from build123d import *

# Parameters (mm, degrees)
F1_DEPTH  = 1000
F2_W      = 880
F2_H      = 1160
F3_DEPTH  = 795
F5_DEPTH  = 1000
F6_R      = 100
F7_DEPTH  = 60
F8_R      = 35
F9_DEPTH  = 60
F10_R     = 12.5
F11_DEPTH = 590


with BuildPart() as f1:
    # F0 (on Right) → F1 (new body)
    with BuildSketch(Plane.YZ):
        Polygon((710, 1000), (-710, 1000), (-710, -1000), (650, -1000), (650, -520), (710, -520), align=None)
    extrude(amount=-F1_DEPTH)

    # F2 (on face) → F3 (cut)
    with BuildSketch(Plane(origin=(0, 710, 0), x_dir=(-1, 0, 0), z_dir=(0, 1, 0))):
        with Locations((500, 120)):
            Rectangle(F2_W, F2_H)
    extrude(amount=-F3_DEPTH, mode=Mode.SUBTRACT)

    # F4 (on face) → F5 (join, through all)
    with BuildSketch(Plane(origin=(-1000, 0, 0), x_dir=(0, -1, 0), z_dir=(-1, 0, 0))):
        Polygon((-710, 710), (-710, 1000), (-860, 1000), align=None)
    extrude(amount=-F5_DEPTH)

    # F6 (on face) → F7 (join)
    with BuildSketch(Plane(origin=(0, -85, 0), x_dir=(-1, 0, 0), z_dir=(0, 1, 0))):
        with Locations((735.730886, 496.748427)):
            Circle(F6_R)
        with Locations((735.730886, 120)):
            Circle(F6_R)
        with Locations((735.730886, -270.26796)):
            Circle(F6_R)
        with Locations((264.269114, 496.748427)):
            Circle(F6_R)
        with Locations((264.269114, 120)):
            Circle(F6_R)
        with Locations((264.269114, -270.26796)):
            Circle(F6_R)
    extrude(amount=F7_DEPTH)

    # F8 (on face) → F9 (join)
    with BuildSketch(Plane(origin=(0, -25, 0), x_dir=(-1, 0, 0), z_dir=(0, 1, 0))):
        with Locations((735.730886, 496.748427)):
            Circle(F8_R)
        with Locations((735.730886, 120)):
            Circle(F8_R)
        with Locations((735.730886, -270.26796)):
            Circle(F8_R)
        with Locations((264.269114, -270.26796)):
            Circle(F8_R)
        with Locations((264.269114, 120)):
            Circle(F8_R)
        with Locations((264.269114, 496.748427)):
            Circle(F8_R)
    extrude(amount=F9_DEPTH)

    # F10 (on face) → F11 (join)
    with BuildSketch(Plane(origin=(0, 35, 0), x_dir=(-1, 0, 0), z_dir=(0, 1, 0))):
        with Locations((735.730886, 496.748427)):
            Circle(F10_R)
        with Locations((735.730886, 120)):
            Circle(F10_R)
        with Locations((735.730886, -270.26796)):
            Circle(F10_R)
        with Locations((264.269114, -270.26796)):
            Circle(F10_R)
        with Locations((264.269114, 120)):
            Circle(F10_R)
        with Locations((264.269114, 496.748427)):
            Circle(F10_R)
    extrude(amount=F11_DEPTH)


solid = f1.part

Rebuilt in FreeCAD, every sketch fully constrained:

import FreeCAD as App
import Part
import Sketcher

doc = App.newDocument("Part")
body = doc.addObject("PartDesign::Body", "Body")

sketch1 = doc.addObject("Sketcher::SketchObject", "Sketch")
body.addObject(sketch1)
sketch1.AttachmentSupport = (doc.YZ_Plane, [""])
sketch1.MapMode = "FlatFace"
sketch1.addGeometry(Part.LineSegment(App.Vector(710, 1000, 0), App.Vector(-710, 1000, 0)), False)
sketch1.addGeometry(Part.LineSegment(App.Vector(-710, 1000, 0), App.Vector(-710, -1000, 0)), False)
sketch1.addGeometry(Part.LineSegment(App.Vector(-710, -1000, 0), App.Vector(650, -1000, 0)), False)
sketch1.addGeometry(Part.LineSegment(App.Vector(650, -1000, 0), App.Vector(650, -520, 0)), False)
sketch1.addGeometry(Part.LineSegment(App.Vector(650, -520, 0), App.Vector(710, -520, 0)), False)
sketch1.addGeometry(Part.LineSegment(App.Vector(710, -520, 0), App.Vector(710, 1000, 0)), False)
sketch1.addConstraint(Sketcher.Constraint("Coincident", 0, 2, 1, 1))
sketch1.addConstraint(Sketcher.Constraint("Coincident", 1, 2, 2, 1))
sketch1.addConstraint(Sketcher.Constraint("Coincident", 2, 2, 3, 1))
sketch1.addConstraint(Sketcher.Constraint("Coincident", 3, 2, 4, 1))
sketch1.addConstraint(Sketcher.Constraint("Coincident", 4, 2, 5, 1))
sketch1.addConstraint(Sketcher.Constraint("Coincident", 5, 2, 0, 1))
sketch1.addConstraint(Sketcher.Constraint("Horizontal", 0))
sketch1.addConstraint(Sketcher.Constraint("Vertical", 1))
sketch1.addConstraint(Sketcher.Constraint("Horizontal", 2))
sketch1.addConstraint(Sketcher.Constraint("Vertical", 3))
sketch1.addConstraint(Sketcher.Constraint("Horizontal", 4))
sketch1.addConstraint(Sketcher.Constraint("Vertical", 5))
sketch1.addConstraint(Sketcher.Constraint("Symmetric", 1, 2, 5, 2, -1, 1))
sketch1.addConstraint(Sketcher.Constraint("DistanceX", 0, 2, 0, 1, 1420.0))
sketch1.addConstraint(Sketcher.Constraint("DistanceX", 2, 1, 2, 2, 1360.0))
sketch1.addConstraint(Sketcher.Constraint("DistanceY", 1, 2, 1, 1, 2000.0))
sketch1.addConstraint(Sketcher.Constraint("DistanceY", 3, 1, 3, 2, 480.0))
pad1 = doc.addObject("PartDesign::Pad", "Pad")
body.addObject(pad1)
pad1.Profile = sketch1
pad1.Length = 1000
pad1.Reversed = True

sketch2 = doc.addObject("Sketcher::SketchObject", "Sketch001")
body.addObject(sketch2)
sketch2.AttachmentSupport = (doc.XZ_Plane, [""])
sketch2.MapMode = "FlatFace"
sketch2.AttachmentOffset = App.Placement(App.Vector(0, 0, -710), App.Rotation())
sketch2.addGeometry(Part.LineSegment(App.Vector(-60, 700, 0), App.Vector(-60, -460, 0)), False)
sketch2.addGeometry(Part.LineSegment(App.Vector(-60, -460, 0), App.Vector(-940, -460, 0)), False)
sketch2.addGeometry(Part.LineSegment(App.Vector(-940, -460, 0), App.Vector(-940, 700, 0)), False)
sketch2.addGeometry(Part.LineSegment(App.Vector(-940, 700, 0), App.Vector(-60, 700, 0)), False)
sketch2.addConstraint(Sketcher.Constraint("Coincident", 0, 2, 1, 1))
sketch2.addConstraint(Sketcher.Constraint("Coincident", 1, 2, 2, 1))
sketch2.addConstraint(Sketcher.Constraint("Coincident", 2, 2, 3, 1))
sketch2.addConstraint(Sketcher.Constraint("Coincident", 3, 2, 0, 1))
sketch2.addConstraint(Sketcher.Constraint("Vertical", 0))
sketch2.addConstraint(Sketcher.Constraint("Horizontal", 1))
sketch2.addConstraint(Sketcher.Constraint("Vertical", 2))
sketch2.addConstraint(Sketcher.Constraint("Horizontal", 3))
sketch2.addConstraint(Sketcher.Constraint("DistanceX", 1, 2, 1, 1, 880.0))
sketch2.addConstraint(Sketcher.Constraint("DistanceY", 0, 2, 0, 1, 1160.0))
sketch2.addConstraint(Sketcher.Constraint("DistanceX", 0, 2, -1, 1, 60.0))
sketch2.addConstraint(Sketcher.Constraint("DistanceY", 0, 2, -1, 1, 460.0))
pocket1 = doc.addObject("PartDesign::Pocket", "Pocket")
body.addObject(pocket1)
pocket1.Profile = sketch2
pocket1.Length = 795
pocket1.Reversed = True

sketch3 = doc.addObject("Sketcher::SketchObject", "Sketch002")
body.addObject(sketch3)
sketch3.AttachmentSupport = (doc.YZ_Plane, [""])
sketch3.MapMode = "FlatFace"
sketch3.AttachmentOffset = App.Placement(App.Vector(0, 0, -1000), App.Rotation())
sketch3.addGeometry(Part.LineSegment(App.Vector(710, 710, 0), App.Vector(710, 1000, 0)), False)
sketch3.addGeometry(Part.LineSegment(App.Vector(710, 1000, 0), App.Vector(860, 1000, 0)), False)
sketch3.addGeometry(Part.LineSegment(App.Vector(860, 1000, 0), App.Vector(710, 710, 0)), False)
sketch3.addConstraint(Sketcher.Constraint("Coincident", 0, 2, 1, 1))
sketch3.addConstraint(Sketcher.Constraint("Coincident", 1, 2, 2, 1))
sketch3.addConstraint(Sketcher.Constraint("Coincident", 2, 2, 0, 1))
sketch3.addConstraint(Sketcher.Constraint("Vertical", 0))
sketch3.addConstraint(Sketcher.Constraint("Horizontal", 1))
sketch3.addConstraint(Sketcher.Constraint("DistanceX", 1, 1, 1, 2, 150.0))
sketch3.addConstraint(Sketcher.Constraint("DistanceY", 0, 1, 0, 2, 290.0))
sketch3.addConstraint(Sketcher.Constraint("DistanceX", -1, 1, 0, 2, 710.0))
sketch3.addConstraint(Sketcher.Constraint("DistanceY", -1, 1, 0, 2, 1000.0))
pad2 = doc.addObject("PartDesign::Pad", "Pad001")
body.addObject(pad2)
pad2.Profile = sketch3
pad2.Length = 1000

sketch4 = doc.addObject("Sketcher::SketchObject", "Sketch003")
body.addObject(sketch4)
sketch4.AttachmentSupport = (doc.XZ_Plane, [""])
sketch4.MapMode = "FlatFace"
sketch4.AttachmentOffset = App.Placement(App.Vector(0, 0, 85), App.Rotation())
sketch4.addGeometry(Part.Circle(App.Vector(-736, 497, 0), App.Vector(0, 0, 1), 100), False)
sketch4.addGeometry(Part.Circle(App.Vector(-736, 120, 0), App.Vector(0, 0, 1), 100), False)
sketch4.addGeometry(Part.Circle(App.Vector(-736, -270, 0), App.Vector(0, 0, 1), 100), False)
sketch4.addGeometry(Part.Circle(App.Vector(-264, 497, 0), App.Vector(0, 0, 1), 100), False)
sketch4.addGeometry(Part.Circle(App.Vector(-264, 120, 0), App.Vector(0, 0, 1), 100), False)
sketch4.addGeometry(Part.Circle(App.Vector(-264, -270, 0), App.Vector(0, 0, 1), 100), False)
sketch4.addConstraint(Sketcher.Constraint("Equal", 0, 1))
sketch4.addConstraint(Sketcher.Constraint("Equal", 1, 2))
sketch4.addConstraint(Sketcher.Constraint("Equal", 2, 3))
sketch4.addConstraint(Sketcher.Constraint("Equal", 3, 4))
sketch4.addConstraint(Sketcher.Constraint("Equal", 4, 5))
sketch4.addConstraint(Sketcher.Constraint("Horizontal", 0, 3, 3, 3))
sketch4.addConstraint(Sketcher.Constraint("Horizontal", 1, 3, 4, 3))
sketch4.addConstraint(Sketcher.Constraint("Horizontal", 2, 3, 5, 3))
sketch4.addConstraint(Sketcher.Constraint("Vertical", 0, 3, 1, 3))
sketch4.addConstraint(Sketcher.Constraint("Vertical", 1, 3, 2, 3))
sketch4.addConstraint(Sketcher.Constraint("Vertical", 3, 3, 4, 3))
sketch4.addConstraint(Sketcher.Constraint("Vertical", 4, 3, 5, 3))
sketch4.addConstraint(Sketcher.Constraint("Diameter", 0, 200.0))
sketch4.addConstraint(Sketcher.Constraint("DistanceY", -1, 1, 1, 3, 120.0))
sketch4.addConstraint(Sketcher.Constraint("DistanceY", 2, 3, -1, 1, 270.26796))
sketch4.addConstraint(Sketcher.Constraint("DistanceX", 0, 3, -1, 1, 735.730886))
sketch4.addConstraint(Sketcher.Constraint("DistanceY", -1, 1, 0, 3, 496.748427))
sketch4.addConstraint(Sketcher.Constraint("DistanceX", 3, 3, -1, 1, 264.269114))
pad3 = doc.addObject("PartDesign::Pad", "Pad002")
body.addObject(pad3)
pad3.Profile = sketch4
pad3.Length = 60
pad3.Reversed = True

sketch5 = doc.addObject("Sketcher::SketchObject", "Sketch004")
body.addObject(sketch5)
sketch5.AttachmentSupport = (doc.XZ_Plane, [""])
sketch5.MapMode = "FlatFace"
sketch5.AttachmentOffset = App.Placement(App.Vector(0, 0, 25), App.Rotation())
sketch5.addGeometry(Part.Circle(App.Vector(-736, 497, 0), App.Vector(0, 0, 1), 35), False)
sketch5.addGeometry(Part.Circle(App.Vector(-736, 120, 0), App.Vector(0, 0, 1), 35), False)
sketch5.addGeometry(Part.Circle(App.Vector(-736, -270, 0), App.Vector(0, 0, 1), 35), False)
sketch5.addGeometry(Part.Circle(App.Vector(-264, -270, 0), App.Vector(0, 0, 1), 35), False)
sketch5.addGeometry(Part.Circle(App.Vector(-264, 120, 0), App.Vector(0, 0, 1), 35), False)
sketch5.addGeometry(Part.Circle(App.Vector(-264, 497, 0), App.Vector(0, 0, 1), 35), False)
sketch5.addConstraint(Sketcher.Constraint("Equal", 0, 1))
sketch5.addConstraint(Sketcher.Constraint("Equal", 1, 2))
sketch5.addConstraint(Sketcher.Constraint("Equal", 2, 3))
sketch5.addConstraint(Sketcher.Constraint("Equal", 3, 4))
sketch5.addConstraint(Sketcher.Constraint("Equal", 4, 5))
sketch5.addConstraint(Sketcher.Constraint("Horizontal", 2, 3, 3, 3))
sketch5.addConstraint(Sketcher.Constraint("Horizontal", 1, 3, 4, 3))
sketch5.addConstraint(Sketcher.Constraint("Horizontal", 0, 3, 5, 3))
sketch5.addConstraint(Sketcher.Constraint("Vertical", 0, 3, 1, 3))
sketch5.addConstraint(Sketcher.Constraint("Vertical", 1, 3, 2, 3))
sketch5.addConstraint(Sketcher.Constraint("Vertical", 3, 3, 4, 3))
sketch5.addConstraint(Sketcher.Constraint("Vertical", 4, 3, 5, 3))
sketch5.addConstraint(Sketcher.Constraint("Diameter", 0, 70.0))
sketch5.addConstraint(Sketcher.Constraint("DistanceY", -1, 1, 1, 3, 120.0))
sketch5.addConstraint(Sketcher.Constraint("DistanceY", 2, 3, -1, 1, 270.26796))
sketch5.addConstraint(Sketcher.Constraint("DistanceX", 0, 3, -1, 1, 735.730886))
sketch5.addConstraint(Sketcher.Constraint("DistanceY", -1, 1, 0, 3, 496.748427))
sketch5.addConstraint(Sketcher.Constraint("DistanceX", 3, 3, -1, 1, 264.269114))
pad4 = doc.addObject("PartDesign::Pad", "Pad003")
body.addObject(pad4)
pad4.Profile = sketch5
pad4.Length = 60
pad4.Reversed = True

sketch6 = doc.addObject("Sketcher::SketchObject", "Sketch005")
body.addObject(sketch6)
sketch6.AttachmentSupport = (doc.XZ_Plane, [""])
sketch6.MapMode = "FlatFace"
sketch6.AttachmentOffset = App.Placement(App.Vector(0, 0, -35), App.Rotation())
sketch6.addGeometry(Part.Circle(App.Vector(-736, 497, 0), App.Vector(0, 0, 1), 12), False)
sketch6.addGeometry(Part.Circle(App.Vector(-736, 120, 0), App.Vector(0, 0, 1), 12), False)
sketch6.addGeometry(Part.Circle(App.Vector(-736, -270, 0), App.Vector(0, 0, 1), 12), False)
sketch6.addGeometry(Part.Circle(App.Vector(-264, -270, 0), App.Vector(0, 0, 1), 12), False)
sketch6.addGeometry(Part.Circle(App.Vector(-264, 120, 0), App.Vector(0, 0, 1), 12), False)
sketch6.addGeometry(Part.Circle(App.Vector(-264, 497, 0), App.Vector(0, 0, 1), 12), False)
sketch6.addConstraint(Sketcher.Constraint("Equal", 0, 1))
sketch6.addConstraint(Sketcher.Constraint("Equal", 1, 2))
sketch6.addConstraint(Sketcher.Constraint("Equal", 2, 3))
sketch6.addConstraint(Sketcher.Constraint("Equal", 3, 4))
sketch6.addConstraint(Sketcher.Constraint("Equal", 4, 5))
sketch6.addConstraint(Sketcher.Constraint("Horizontal", 2, 3, 3, 3))
sketch6.addConstraint(Sketcher.Constraint("Horizontal", 1, 3, 4, 3))
sketch6.addConstraint(Sketcher.Constraint("Horizontal", 0, 3, 5, 3))
sketch6.addConstraint(Sketcher.Constraint("Vertical", 0, 3, 1, 3))
sketch6.addConstraint(Sketcher.Constraint("Vertical", 1, 3, 2, 3))
sketch6.addConstraint(Sketcher.Constraint("Vertical", 3, 3, 4, 3))
sketch6.addConstraint(Sketcher.Constraint("Vertical", 4, 3, 5, 3))
sketch6.addConstraint(Sketcher.Constraint("Diameter", 0, 25.0))
sketch6.addConstraint(Sketcher.Constraint("DistanceY", -1, 1, 1, 3, 120.0))
sketch6.addConstraint(Sketcher.Constraint("DistanceY", 2, 3, -1, 1, 270.26796))
sketch6.addConstraint(Sketcher.Constraint("DistanceX", 0, 3, -1, 1, 735.730886))
sketch6.addConstraint(Sketcher.Constraint("DistanceY", -1, 1, 0, 3, 496.748427))
sketch6.addConstraint(Sketcher.Constraint("DistanceX", 3, 3, -1, 1, 264.269114))
pad5 = doc.addObject("PartDesign::Pad", "Pad004")
body.addObject(pad5)
pad5.Profile = sketch6
pad5.Length = 590
pad5.Reversed = True

doc.recompute()
